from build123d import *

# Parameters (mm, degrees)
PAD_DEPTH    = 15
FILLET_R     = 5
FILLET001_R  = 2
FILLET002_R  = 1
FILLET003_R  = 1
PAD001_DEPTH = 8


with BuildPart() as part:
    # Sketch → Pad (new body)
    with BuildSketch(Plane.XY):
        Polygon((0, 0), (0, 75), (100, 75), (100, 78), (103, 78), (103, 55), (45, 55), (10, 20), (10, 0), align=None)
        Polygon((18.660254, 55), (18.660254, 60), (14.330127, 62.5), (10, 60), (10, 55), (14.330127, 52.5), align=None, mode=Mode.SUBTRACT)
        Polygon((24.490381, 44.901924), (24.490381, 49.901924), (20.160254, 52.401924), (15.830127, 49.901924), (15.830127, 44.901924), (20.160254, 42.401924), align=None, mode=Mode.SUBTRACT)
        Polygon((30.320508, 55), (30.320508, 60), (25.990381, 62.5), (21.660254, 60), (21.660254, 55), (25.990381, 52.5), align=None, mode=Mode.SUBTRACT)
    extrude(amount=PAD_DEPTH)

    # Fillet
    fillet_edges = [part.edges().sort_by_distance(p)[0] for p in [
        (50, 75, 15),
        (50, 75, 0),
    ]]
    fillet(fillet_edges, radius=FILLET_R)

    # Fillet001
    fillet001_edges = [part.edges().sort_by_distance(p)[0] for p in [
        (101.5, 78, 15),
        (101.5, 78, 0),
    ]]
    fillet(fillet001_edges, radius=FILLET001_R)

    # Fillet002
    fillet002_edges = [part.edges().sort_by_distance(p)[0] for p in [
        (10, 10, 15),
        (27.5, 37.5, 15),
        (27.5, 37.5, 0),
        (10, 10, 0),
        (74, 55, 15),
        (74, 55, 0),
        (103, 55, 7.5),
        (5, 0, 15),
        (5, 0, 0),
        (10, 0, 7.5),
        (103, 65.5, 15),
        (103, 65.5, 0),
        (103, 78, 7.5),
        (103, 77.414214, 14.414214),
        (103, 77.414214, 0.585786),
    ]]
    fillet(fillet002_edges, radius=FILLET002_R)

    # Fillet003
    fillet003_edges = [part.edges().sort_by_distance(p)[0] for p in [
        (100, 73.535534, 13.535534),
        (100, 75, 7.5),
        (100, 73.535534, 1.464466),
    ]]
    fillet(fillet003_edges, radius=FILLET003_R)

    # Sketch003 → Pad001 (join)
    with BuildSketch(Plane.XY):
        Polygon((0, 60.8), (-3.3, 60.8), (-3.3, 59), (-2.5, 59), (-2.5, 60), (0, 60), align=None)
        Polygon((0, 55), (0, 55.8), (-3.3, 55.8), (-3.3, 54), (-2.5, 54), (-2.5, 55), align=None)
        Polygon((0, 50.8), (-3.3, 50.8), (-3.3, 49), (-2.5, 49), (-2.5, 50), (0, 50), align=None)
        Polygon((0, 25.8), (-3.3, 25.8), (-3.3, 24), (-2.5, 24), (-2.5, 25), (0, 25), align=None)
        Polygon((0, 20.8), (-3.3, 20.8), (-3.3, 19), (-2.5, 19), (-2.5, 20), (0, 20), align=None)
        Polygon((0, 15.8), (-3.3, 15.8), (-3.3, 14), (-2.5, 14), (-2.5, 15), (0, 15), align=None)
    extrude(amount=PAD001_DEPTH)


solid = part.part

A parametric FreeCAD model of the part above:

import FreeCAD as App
import Part
import Sketcher
from FreeCAD import Vector
Q = App.Units.Quantity


def edges_at(feature, points):
    """Names of the edges that pass closest to the given points."""
    edges = feature.Shape.Edges
    near = lambda p: min(range(len(edges)), key=lambda i: edges[i].distToShape(Part.Vertex(*p))[0])
    return sorted({f"Edge{near(p) + 1}" for p in points})

doc = App.newDocument("Part")
body = doc.addObject("PartDesign::Body", "Body")

sketch1 = doc.addObject("Sketcher::SketchObject", "Sketch")
body.addObject(sketch1)
sketch1.AttachmentSupport = (doc.XY_Plane, [""])
sketch1.MapMode = "FlatFace"
sketch1.addGeometry([
    Part.LineSegment(Vector(0, 75, 0), Vector(0, 0, 0)),
    Part.LineSegment(Vector(0, 0, 0), Vector(10, 0, 0)),
    Part.LineSegment(Vector(10, 0, 0), Vector(10, 20, 0)),
    Part.LineSegment(Vector(10, 20, 0), Vector(45, 55, 0)),
    Part.LineSegment(Vector(45, 55, 0), Vector(103, 55, 0)),
    Part.LineSegment(Vector(103, 55, 0), Vector(103, 78, 0)),
    Part.LineSegment(Vector(103, 78, 0), Vector(100, 78, 0)),
    Part.LineSegment(Vector(100, 78, 0), Vector(100, 75, 0)),
    Part.LineSegment(Vector(100, 75, 0), Vector(0, 75, 0)),
    Part.LineSegment(Vector(24.490381, 44.901924, 0), Vector(20.160254, 42.401924, 0)),
    Part.LineSegment(Vector(20.160254, 42.401924, 0), Vector(15.830127, 44.901924, 0)),
    Part.LineSegment(Vector(15.830127, 44.901924, 0), Vector(15.830127, 49.901924, 0)),
    Part.LineSegment(Vector(15.830127, 49.901924, 0), Vector(20.160254, 52.401924, 0)),
    Part.LineSegment(Vector(20.160254, 52.401924, 0), Vector(24.490381, 49.901924, 0)),
    Part.LineSegment(Vector(24.490381, 49.901924, 0), Vector(24.490381, 44.901924, 0)),
    Part.LineSegment(Vector(30.320508, 55, 0), Vector(25.990381, 52.5, 0)),
    Part.LineSegment(Vector(25.990381, 52.5, 0), Vector(21.660254, 55, 0)),
    Part.LineSegment(Vector(21.660254, 55, 0), Vector(21.660254, 60, 0)),
    Part.LineSegment(Vector(21.660254, 60, 0), Vector(25.990381, 62.5, 0)),
    Part.LineSegment(Vector(25.990381, 62.5, 0), Vector(30.320508, 60, 0)),
    Part.LineSegment(Vector(30.320508, 60, 0), Vector(30.320508, 55, 0)),
    Part.LineSegment(Vector(18.660254, 55, 0), Vector(14.330127, 52.5, 0)),
    Part.LineSegment(Vector(14.330127, 52.5, 0), Vector(10, 55, 0)),
    Part.LineSegment(Vector(10, 55, 0), Vector(10, 60, 0)),
    Part.LineSegment(Vector(10, 60, 0), Vector(14.330127, 62.5, 0)),
    Part.LineSegment(Vector(14.330127, 62.5, 0), Vector(18.660254, 60, 0)),
    Part.LineSegment(Vector(18.660254, 60, 0), Vector(18.660254, 55, 0)),
], False)
sketch1.addConstraint([
    Sketcher.Constraint("Coincident", 0, 2, 1, 1),
    Sketcher.Constraint("Coincident", 1, 2, 2, 1),
    Sketcher.Constraint("Coincident", 2, 2, 3, 1),
    Sketcher.Constraint("Coincident", 3, 2, 4, 1),
    Sketcher.Constraint("Coincident", 4, 2, 5, 1),
    Sketcher.Constraint("Coincident", 5, 2, 6, 1),
    Sketcher.Constraint("Coincident", 6, 2, 7, 1),
    Sketcher.Constraint("Coincident", 7, 2, 8, 1),
    Sketcher.Constraint("Coincident", 8, 2, 0, 1),
    Sketcher.Constraint("Coincident", 9, 2, 10, 1),
    Sketcher.Constraint("Coincident", 10, 2, 11, 1),
    Sketcher.Constraint("Coincident", 11, 2, 12, 1),
    Sketcher.Constraint("Coincident", 12, 2, 13, 1),
    Sketcher.Constraint("Coincident", 13, 2, 14, 1),
    Sketcher.Constraint("Coincident", 14, 2, 9, 1),
    Sketcher.Constraint("Coincident", 15, 2, 16, 1),
    Sketcher.Constraint("Coincident", 16, 2, 17, 1),
    Sketcher.Constraint("Coincident", 17, 2, 18, 1),
    Sketcher.Constraint("Coincident", 18, 2, 19, 1),
    Sketcher.Constraint("Coincident", 19, 2, 20, 1),
    Sketcher.Constraint("Coincident", 20, 2, 15, 1),
    Sketcher.Constraint("Coincident", 21, 2, 22, 1),
    Sketcher.Constraint("Coincident", 22, 2, 23, 1),
    Sketcher.Constraint("Coincident", 23, 2, 24, 1),
    Sketcher.Constraint("Coincident", 24, 2, 25, 1),
    Sketcher.Constraint("Coincident", 25, 2, 26, 1),
    Sketcher.Constraint("Coincident", 26, 2, 21, 1),
    Sketcher.Constraint("Vertical", 0),
    Sketcher.Constraint("Horizontal", 1),
    Sketcher.Constraint("Vertical", 2),
    Sketcher.Constraint("Horizontal", 4),
    Sketcher.Constraint("Vertical", 5),
    Sketcher.Constraint("Horizontal", 6),
    Sketcher.Constraint("Vertical", 7),
    Sketcher.Constraint("Horizontal", 8),
    Sketcher.Constraint("Vertical", 11),
    Sketcher.Constraint("Vertical", 14),
    Sketcher.Constraint("Vertical", 17),
    Sketcher.Constraint("Vertical", 20),
    Sketcher.Constraint("Vertical", 23),
    Sketcher.Constraint("Vertical", 26),
    Sketcher.Constraint("Coincident", 0, 2, -1, 1),
    Sketcher.Constraint("Parallel", 9, 12),
    Sketcher.Constraint("Parallel", 10, 13),
    Sketcher.Constraint("Parallel", 12, 15),
    Sketcher.Constraint("Parallel", 13, 16),
    Sketcher.Constraint("Parallel", 15, 18),
    Sketcher.Constraint("Parallel", 16, 19),
    Sketcher.Constraint("Parallel", 18, 21),
    Sketcher.Constraint("Parallel", 19, 22),
    Sketcher.Constraint("Parallel", 21, 24),
    Sketcher.Constraint("Parallel", 22, 25),
    Sketcher.Constraint("Horizontal", 11, 2, 13, 2),
    Sketcher.Constraint("Horizontal", 10, 2, 14, 2),
    Sketcher.Constraint("Horizontal", 4, 2, 16, 2),
    Sketcher.Constraint("Horizontal", 17, 2, 19, 2),
    Sketcher.Constraint("Horizontal", 16, 2, 20, 2),
    Sketcher.Constraint("Horizontal", 15, 2, 21, 2),
    Sketcher.Constraint("Horizontal", 20, 2, 22, 2),
    Sketcher.Constraint("Horizontal", 19, 2, 23, 2),
    Sketcher.Constraint("Horizontal", 18, 2, 24, 2),
    Sketcher.Constraint("Horizontal", 23, 2, 25, 2),
    Sketcher.Constraint("Vertical", 9, 2, 12, 2),
    Sketcher.Constraint("Vertical", 2, 2, 22, 2),
    Sketcher.Constraint("Equal", 6, 7),
    Sketcher.Constraint("Equal", 14, 17),
    Sketcher.Constraint("Equal", 13, 15),
    Sketcher.Constraint("DistanceX", 1, 1, 1, 2, 10.0),
    Sketcher.Constraint("DistanceX", 4, 1, 4, 2, 58.0),
    Sketcher.Constraint("DistanceX", 6, 2, 6, 1, 3.0),
    Sketcher.Constraint("DistanceX", 8, 2, 8, 1, 100.0),
    Sketcher.Constraint("DistanceY", 0, 2, 0, 1, 75.0),
    Sketcher.Constraint("DistanceY", 2, 1, 2, 2, 20.0),
    Sketcher.Constraint("DistanceY", 5, 1, 5, 2, 23.0),
    Sketcher.Constraint("DistanceY", 11, 1, 11, 2, 5.0),
    Sketcher.Constraint("Angle", 9, Q("-150 deg")),
    Sketcher.Constraint("Distance", 9, 5.0),
    Sketcher.Constraint("DistanceX", 25, 2, 17, 2, 3.0),
    Sketcher.Constraint("DistanceX", 13, 2, 15, 2, 1.5),
    Sketcher.Constraint("DistanceY", -1, 1, 9, 2, 42.401924),
])
pad1 = doc.addObject("PartDesign::Pad", "Pad")
body.addObject(pad1)
pad1.Profile = sketch1
pad1.Length = 15
doc.recompute()

fillet = doc.addObject("PartDesign::Fillet", "Fillet")
body.addObject(fillet)
fillet.Base = (pad1, edges_at(pad1, [(50, 75, 15), (50, 75, 0)]))
fillet.Radius = 5
doc.recompute()

fillet2 = doc.addObject("PartDesign::Fillet", "Fillet001")
body.addObject(fillet2)
fillet2.Base = (fillet, edges_at(fillet, [(101.5, 78, 15), (101.5, 78, 0)]))
fillet2.Radius = 2
doc.recompute()

fillet3 = doc.addObject("PartDesign::Fillet", "Fillet002")
body.addObject(fillet3)
fillet3.Base = (fillet2, edges_at(fillet2, [
    (10, 10, 15),
    (27.5, 37.5, 15),
    (27.5, 37.5, 0),
    (10, 10, 0),
    (74, 55, 15),
    (74, 55, 0),
    (103, 55, 7.5),
    (5, 0, 15),
    (5, 0, 0),
    (10, 0, 7.5),
    (103, 65.5, 15),
    (103, 65.5, 0),
    (103, 78, 7.5),
    (103, 77.414, 14.414),
    (103, 77.414, 0.586),
]))
fillet3.Radius = 1
doc.recompute()

fillet4 = doc.addObject("PartDesign::Fillet", "Fillet003")
body.addObject(fillet4)
fillet4.Base = (fillet3, edges_at(fillet3, [(100, 73.536, 13.536), (100, 75, 7.5), (100, 73.536, 1.464)]))
fillet4.Radius = 1

sketch2 = doc.addObject("Sketcher::SketchObject", "Sketch001")
body.addObject(sketch2)
sketch2.AttachmentSupport = (doc.XY_Plane, [""])
sketch2.MapMode = "FlatFace"
sketch2.addGeometry([
    Part.LineSegment(Vector(0, 60.8, 0), Vector(-3.3, 60.8, 0)),
    Part.LineSegment(Vector(-3.3, 60.8, 0), Vector(-3.3, 59, 0)),
    Part.LineSegment(Vector(-3.3, 59, 0), Vector(-2.5, 59, 0)),
    Part.LineSegment(Vector(-2.5, 59, 0), Vector(-2.5, 60, 0)),
    Part.LineSegment(Vector(-2.5, 60, 0), Vector(0, 60, 0)),
    Part.LineSegment(Vector(0, 60, 0), Vector(0, 60.8, 0)),
    Part.LineSegment(Vector(0, 55, 0), Vector(0, 55.8, 0)),
    Part.LineSegment(Vector(0, 55.8, 0), Vector(-3.3, 55.8, 0)),
    Part.LineSegment(Vector(-3.3, 55.8, 0), Vector(-3.3, 54, 0)),
    Part.LineSegment(Vector(-3.3, 54, 0), Vector(-2.5, 54, 0)),
    Part.LineSegment(Vector(-2.5, 54, 0), Vector(-2.5, 55, 0)),
    Part.LineSegment(Vector(-2.5, 55, 0), Vector(0, 55, 0)),
    Part.LineSegment(Vector(0, 50.8, 0), Vector(-3.3, 50.8, 0)),
    Part.LineSegment(Vector(-3.3, 50.8, 0), Vector(-3.3, 49, 0)),
    Part.LineSegment(Vector(-3.3, 49, 0), Vector(-2.5, 49, 0)),
    Part.LineSegment(Vector(-2.5, 49, 0), Vector(-2.5, 50, 0)),
    Part.LineSegment(Vector(-2.5, 50, 0), Vector(0, 50, 0)),
    Part.LineSegment(Vector(0, 50, 0), Vector(0, 50.8, 0)),
    Part.LineSegment(Vector(0, 25.8, 0), Vector(-3.3, 25.8, 0)),
    Part.LineSegment(Vector(-3.3, 25.8, 0), Vector(-3.3, 24, 0)),
    Part.LineSegment(Vector(-3.3, 24, 0), Vector(-2.5, 24, 0)),
    Part.LineSegment(Vector(-2.5, 24, 0), Vector(-2.5, 25, 0)),
    Part.LineSegment(Vector(-2.5, 25, 0), Vector(0, 25, 0)),
    Part.LineSegment(Vector(0, 25, 0), Vector(0, 25.8, 0)),
    Part.LineSegment(Vector(0, 20.8, 0), Vector(-3.3, 20.8, 0)),
    Part.LineSegment(Vector(-3.3, 20.8, 0), Vector(-3.3, 19, 0)),
    Part.LineSegment(Vector(-3.3, 19, 0), Vector(-2.5, 19, 0)),
    Part.LineSegment(Vector(-2.5, 19, 0), Vector(-2.5, 20, 0)),
    Part.LineSegment(Vector(-2.5, 20, 0), Vector(0, 20, 0)),
    Part.LineSegment(Vector(0, 20, 0), Vector(0, 20.8, 0)),
    Part.LineSegment(Vector(0, 15.8, 0), Vector(-3.3, 15.8, 0)),
    Part.LineSegment(Vector(-3.3, 15.8, 0), Vector(-3.3, 14, 0)),
    Part.LineSegment(Vector(-3.3, 14, 0), Vector(-2.5, 14, 0)),
    Part.LineSegment(Vector(-2.5, 14, 0), Vector(-2.5, 15, 0)),
    Part.LineSegment(Vector(-2.5, 15, 0), Vector(0, 15, 0)),
    Part.LineSegment(Vector(0, 15, 0), Vector(0, 15.8, 0)),
], False)
sketch2.addConstraint([
    Sketcher.Constraint("Coincident", 0, 2, 1, 1),
    Sketcher.Constraint("Coincident", 1, 2, 2, 1),
    Sketcher.Constraint("Coincident", 2, 2, 3, 1),
    Sketcher.Constraint("Coincident", 3, 2, 4, 1),
    Sketcher.Constraint("Coincident", 4, 2, 5, 1),
    Sketcher.Constraint("Coincident", 5, 2, 0, 1),
    Sketcher.Constraint("Coincident", 6, 2, 7, 1),
    Sketcher.Constraint("Coincident", 7, 2, 8, 1),
    Sketcher.Constraint("Coincident", 8, 2, 9, 1),
    Sketcher.Constraint("Coincident", 9, 2, 10, 1),
    Sketcher.Constraint("Coincident", 10, 2, 11, 1),
    Sketcher.Constraint("Coincident", 11, 2, 6, 1),
    Sketcher.Constraint("Coincident", 12, 2, 13, 1),
    Sketcher.Constraint("Coincident", 13, 2, 14, 1),
    Sketcher.Constraint("Coincident", 14, 2, 15, 1),
    Sketcher.Constraint("Coincident", 15, 2, 16, 1),
    Sketcher.Constraint("Coincident", 16, 2, 17, 1),
    Sketcher.Constraint("Coincident", 17, 2, 12, 1),
    Sketcher.Constraint("Coincident", 18, 2, 19, 1),
    Sketcher.Constraint("Coincident", 19, 2, 20, 1),
    Sketcher.Constraint("Coincident", 20, 2, 21, 1),
    Sketcher.Constraint("Coincident", 21, 2, 22, 1),
    Sketcher.Constraint("Coincident", 22, 2, 23, 1),
    Sketcher.Constraint("Coincident", 23, 2, 18, 1),
    Sketcher.Constraint("Coincident", 24, 2, 25, 1),
    Sketcher.Constraint("Coincident", 25, 2, 26, 1),
    Sketcher.Constraint("Coincident", 26, 2, 27, 1),
    Sketcher.Constraint("Coincident", 27, 2, 28, 1),
    Sketcher.Constraint("Coincident", 28, 2, 29, 1),
    Sketcher.Constraint("Coincident", 29, 2, 24, 1),
    Sketcher.Constraint("Coincident", 30, 2, 31, 1),
    Sketcher.Constraint("Coincident", 31, 2, 32, 1),
    Sketcher.Constraint("Coincident", 32, 2, 33, 1),
    Sketcher.Constraint("Coincident", 33, 2, 34, 1),
    Sketcher.Constraint("Coincident", 34, 2, 35, 1),
    Sketcher.Constraint("Coincident", 35, 2, 30, 1),
    Sketcher.Constraint("Horizontal", 0),
    Sketcher.Constraint("Vertical", 1),
    Sketcher.Constraint("Horizontal", 2),
    Sketcher.Constraint("Vertical", 3),
    Sketcher.Constraint("Horizontal", 4),
    Sketcher.Constraint("Vertical", 5),
    Sketcher.Constraint("Vertical", 6),
    Sketcher.Constraint("Horizontal", 7),
    Sketcher.Constraint("Vertical", 8),
    Sketcher.Constraint("Horizontal", 9),
    Sketcher.Constraint("Vertical", 10),
    Sketcher.Constraint("Horizontal", 11),
    Sketcher.Constraint("Horizontal", 12),
    Sketcher.Constraint("Vertical", 13),
    Sketcher.Constraint("Horizontal", 14),
    Sketcher.Constraint("Vertical", 15),
    Sketcher.Constraint("Horizontal", 16),
    Sketcher.Constraint("Vertical", 17),
    Sketcher.Constraint("Horizontal", 18),
    Sketcher.Constraint("Vertical", 19),
    Sketcher.Constraint("Horizontal", 20),
    Sketcher.Constraint("Vertical", 21),
    Sketcher.Constraint("Horizontal", 22),
    Sketcher.Constraint("Vertical", 23),
    Sketcher.Constraint("Horizontal", 24),
    Sketcher.Constraint("Vertical", 25),
    Sketcher.Constraint("Horizontal", 26),
    Sketcher.Constraint("Vertical", 27),
    Sketcher.Constraint("Horizontal", 28),
    Sketcher.Constraint("Vertical", 29),
    Sketcher.Constraint("Horizontal", 30),
    Sketcher.Constraint("Vertical", 31),
    Sketcher.Constraint("Horizontal", 32),
    Sketcher.Constraint("Vertical", 33),
    Sketcher.Constraint("Horizontal", 34),
    Sketcher.Constraint("Vertical", 35),
    Sketcher.Constraint("PointOnObject", 4, 2, -2),
    Sketcher.Constraint("PointOnObject", 6, 2, -2),
    Sketcher.Constraint("PointOnObject", 16, 2, -2),
    Sketcher.Constraint("PointOnObject", 22, 2, -2),
    Sketcher.Constraint("PointOnObject", 28, 2, -2),
    Sketcher.Constraint("PointOnObject", 34, 2, -2),
    Sketcher.Constraint("Vertical", 1, 2, 7, 2),
    Sketcher.Constraint("Vertical", 3, 2, 9, 2),
    Sketcher.Constraint("Vertical", 8, 2, 12, 2),
    Sketcher.Constraint("Vertical", 10, 2, 14, 2),
    Sketcher.Constraint("Vertical", 13, 2, 18, 2),
    Sketcher.Constraint("Vertical", 15, 2, 20, 2),
    Sketcher.Constraint("Vertical", 19, 2, 24, 2),
    Sketcher.Constraint("Vertical", 21, 2, 26, 2),
    Sketcher.Constraint("Vertical", 25, 2, 30, 2),
    Sketcher.Constraint("Vertical", 27, 2, 32, 2),
    Sketcher.Constraint("Equal", 32, 5),
    Sketcher.Constraint("Equal", 5, 6),
    Sketcher.Constraint("Equal", 1, 8),
    Sketcher.Constraint("Equal", 8, 13),
    Sketcher.Constraint("Equal", 10, 15),
    Sketcher.Constraint("Equal", 13, 19),
    Sketcher.Constraint("Equal", 15, 21),
    Sketcher.Constraint("Equal", 19, 25),
    Sketcher.Constraint("Equal", 21, 27),
    Sketcher.Constraint("Equal", 25, 31),
    Sketcher.Constraint("Equal", 27, 33),
    Sketcher.Constraint("DistanceY", 3, 1, 3, 2, 1.0),
    Sketcher.Constraint("DistanceX", 0, 2, 0, 1, 3.3),
    Sketcher.Constraint("DistanceX", 2, 1, 2, 2, 0.8),
    Sketcher.Constraint("DistanceY", -1, 1, 1, 2, 59.0),
    Sketcher.Constraint("DistanceY", -1, 1, 8, 2, 54.0),
    Sketcher.Constraint("DistanceY", -1, 1, 13, 2, 49.0),
    Sketcher.Constraint("DistanceY", -1, 1, 19, 2, 24.0),
    Sketcher.Constraint("DistanceY", -1, 1, 25, 2, 19.0),
    Sketcher.Constraint("DistanceY", -1, 1, 31, 2, 14.0),
])
pad2 = doc.addObject("PartDesign::Pad", "Pad001")
body.addObject(pad2)
pad2.Profile = sketch2
pad2.Length = 8

doc.recompute()
